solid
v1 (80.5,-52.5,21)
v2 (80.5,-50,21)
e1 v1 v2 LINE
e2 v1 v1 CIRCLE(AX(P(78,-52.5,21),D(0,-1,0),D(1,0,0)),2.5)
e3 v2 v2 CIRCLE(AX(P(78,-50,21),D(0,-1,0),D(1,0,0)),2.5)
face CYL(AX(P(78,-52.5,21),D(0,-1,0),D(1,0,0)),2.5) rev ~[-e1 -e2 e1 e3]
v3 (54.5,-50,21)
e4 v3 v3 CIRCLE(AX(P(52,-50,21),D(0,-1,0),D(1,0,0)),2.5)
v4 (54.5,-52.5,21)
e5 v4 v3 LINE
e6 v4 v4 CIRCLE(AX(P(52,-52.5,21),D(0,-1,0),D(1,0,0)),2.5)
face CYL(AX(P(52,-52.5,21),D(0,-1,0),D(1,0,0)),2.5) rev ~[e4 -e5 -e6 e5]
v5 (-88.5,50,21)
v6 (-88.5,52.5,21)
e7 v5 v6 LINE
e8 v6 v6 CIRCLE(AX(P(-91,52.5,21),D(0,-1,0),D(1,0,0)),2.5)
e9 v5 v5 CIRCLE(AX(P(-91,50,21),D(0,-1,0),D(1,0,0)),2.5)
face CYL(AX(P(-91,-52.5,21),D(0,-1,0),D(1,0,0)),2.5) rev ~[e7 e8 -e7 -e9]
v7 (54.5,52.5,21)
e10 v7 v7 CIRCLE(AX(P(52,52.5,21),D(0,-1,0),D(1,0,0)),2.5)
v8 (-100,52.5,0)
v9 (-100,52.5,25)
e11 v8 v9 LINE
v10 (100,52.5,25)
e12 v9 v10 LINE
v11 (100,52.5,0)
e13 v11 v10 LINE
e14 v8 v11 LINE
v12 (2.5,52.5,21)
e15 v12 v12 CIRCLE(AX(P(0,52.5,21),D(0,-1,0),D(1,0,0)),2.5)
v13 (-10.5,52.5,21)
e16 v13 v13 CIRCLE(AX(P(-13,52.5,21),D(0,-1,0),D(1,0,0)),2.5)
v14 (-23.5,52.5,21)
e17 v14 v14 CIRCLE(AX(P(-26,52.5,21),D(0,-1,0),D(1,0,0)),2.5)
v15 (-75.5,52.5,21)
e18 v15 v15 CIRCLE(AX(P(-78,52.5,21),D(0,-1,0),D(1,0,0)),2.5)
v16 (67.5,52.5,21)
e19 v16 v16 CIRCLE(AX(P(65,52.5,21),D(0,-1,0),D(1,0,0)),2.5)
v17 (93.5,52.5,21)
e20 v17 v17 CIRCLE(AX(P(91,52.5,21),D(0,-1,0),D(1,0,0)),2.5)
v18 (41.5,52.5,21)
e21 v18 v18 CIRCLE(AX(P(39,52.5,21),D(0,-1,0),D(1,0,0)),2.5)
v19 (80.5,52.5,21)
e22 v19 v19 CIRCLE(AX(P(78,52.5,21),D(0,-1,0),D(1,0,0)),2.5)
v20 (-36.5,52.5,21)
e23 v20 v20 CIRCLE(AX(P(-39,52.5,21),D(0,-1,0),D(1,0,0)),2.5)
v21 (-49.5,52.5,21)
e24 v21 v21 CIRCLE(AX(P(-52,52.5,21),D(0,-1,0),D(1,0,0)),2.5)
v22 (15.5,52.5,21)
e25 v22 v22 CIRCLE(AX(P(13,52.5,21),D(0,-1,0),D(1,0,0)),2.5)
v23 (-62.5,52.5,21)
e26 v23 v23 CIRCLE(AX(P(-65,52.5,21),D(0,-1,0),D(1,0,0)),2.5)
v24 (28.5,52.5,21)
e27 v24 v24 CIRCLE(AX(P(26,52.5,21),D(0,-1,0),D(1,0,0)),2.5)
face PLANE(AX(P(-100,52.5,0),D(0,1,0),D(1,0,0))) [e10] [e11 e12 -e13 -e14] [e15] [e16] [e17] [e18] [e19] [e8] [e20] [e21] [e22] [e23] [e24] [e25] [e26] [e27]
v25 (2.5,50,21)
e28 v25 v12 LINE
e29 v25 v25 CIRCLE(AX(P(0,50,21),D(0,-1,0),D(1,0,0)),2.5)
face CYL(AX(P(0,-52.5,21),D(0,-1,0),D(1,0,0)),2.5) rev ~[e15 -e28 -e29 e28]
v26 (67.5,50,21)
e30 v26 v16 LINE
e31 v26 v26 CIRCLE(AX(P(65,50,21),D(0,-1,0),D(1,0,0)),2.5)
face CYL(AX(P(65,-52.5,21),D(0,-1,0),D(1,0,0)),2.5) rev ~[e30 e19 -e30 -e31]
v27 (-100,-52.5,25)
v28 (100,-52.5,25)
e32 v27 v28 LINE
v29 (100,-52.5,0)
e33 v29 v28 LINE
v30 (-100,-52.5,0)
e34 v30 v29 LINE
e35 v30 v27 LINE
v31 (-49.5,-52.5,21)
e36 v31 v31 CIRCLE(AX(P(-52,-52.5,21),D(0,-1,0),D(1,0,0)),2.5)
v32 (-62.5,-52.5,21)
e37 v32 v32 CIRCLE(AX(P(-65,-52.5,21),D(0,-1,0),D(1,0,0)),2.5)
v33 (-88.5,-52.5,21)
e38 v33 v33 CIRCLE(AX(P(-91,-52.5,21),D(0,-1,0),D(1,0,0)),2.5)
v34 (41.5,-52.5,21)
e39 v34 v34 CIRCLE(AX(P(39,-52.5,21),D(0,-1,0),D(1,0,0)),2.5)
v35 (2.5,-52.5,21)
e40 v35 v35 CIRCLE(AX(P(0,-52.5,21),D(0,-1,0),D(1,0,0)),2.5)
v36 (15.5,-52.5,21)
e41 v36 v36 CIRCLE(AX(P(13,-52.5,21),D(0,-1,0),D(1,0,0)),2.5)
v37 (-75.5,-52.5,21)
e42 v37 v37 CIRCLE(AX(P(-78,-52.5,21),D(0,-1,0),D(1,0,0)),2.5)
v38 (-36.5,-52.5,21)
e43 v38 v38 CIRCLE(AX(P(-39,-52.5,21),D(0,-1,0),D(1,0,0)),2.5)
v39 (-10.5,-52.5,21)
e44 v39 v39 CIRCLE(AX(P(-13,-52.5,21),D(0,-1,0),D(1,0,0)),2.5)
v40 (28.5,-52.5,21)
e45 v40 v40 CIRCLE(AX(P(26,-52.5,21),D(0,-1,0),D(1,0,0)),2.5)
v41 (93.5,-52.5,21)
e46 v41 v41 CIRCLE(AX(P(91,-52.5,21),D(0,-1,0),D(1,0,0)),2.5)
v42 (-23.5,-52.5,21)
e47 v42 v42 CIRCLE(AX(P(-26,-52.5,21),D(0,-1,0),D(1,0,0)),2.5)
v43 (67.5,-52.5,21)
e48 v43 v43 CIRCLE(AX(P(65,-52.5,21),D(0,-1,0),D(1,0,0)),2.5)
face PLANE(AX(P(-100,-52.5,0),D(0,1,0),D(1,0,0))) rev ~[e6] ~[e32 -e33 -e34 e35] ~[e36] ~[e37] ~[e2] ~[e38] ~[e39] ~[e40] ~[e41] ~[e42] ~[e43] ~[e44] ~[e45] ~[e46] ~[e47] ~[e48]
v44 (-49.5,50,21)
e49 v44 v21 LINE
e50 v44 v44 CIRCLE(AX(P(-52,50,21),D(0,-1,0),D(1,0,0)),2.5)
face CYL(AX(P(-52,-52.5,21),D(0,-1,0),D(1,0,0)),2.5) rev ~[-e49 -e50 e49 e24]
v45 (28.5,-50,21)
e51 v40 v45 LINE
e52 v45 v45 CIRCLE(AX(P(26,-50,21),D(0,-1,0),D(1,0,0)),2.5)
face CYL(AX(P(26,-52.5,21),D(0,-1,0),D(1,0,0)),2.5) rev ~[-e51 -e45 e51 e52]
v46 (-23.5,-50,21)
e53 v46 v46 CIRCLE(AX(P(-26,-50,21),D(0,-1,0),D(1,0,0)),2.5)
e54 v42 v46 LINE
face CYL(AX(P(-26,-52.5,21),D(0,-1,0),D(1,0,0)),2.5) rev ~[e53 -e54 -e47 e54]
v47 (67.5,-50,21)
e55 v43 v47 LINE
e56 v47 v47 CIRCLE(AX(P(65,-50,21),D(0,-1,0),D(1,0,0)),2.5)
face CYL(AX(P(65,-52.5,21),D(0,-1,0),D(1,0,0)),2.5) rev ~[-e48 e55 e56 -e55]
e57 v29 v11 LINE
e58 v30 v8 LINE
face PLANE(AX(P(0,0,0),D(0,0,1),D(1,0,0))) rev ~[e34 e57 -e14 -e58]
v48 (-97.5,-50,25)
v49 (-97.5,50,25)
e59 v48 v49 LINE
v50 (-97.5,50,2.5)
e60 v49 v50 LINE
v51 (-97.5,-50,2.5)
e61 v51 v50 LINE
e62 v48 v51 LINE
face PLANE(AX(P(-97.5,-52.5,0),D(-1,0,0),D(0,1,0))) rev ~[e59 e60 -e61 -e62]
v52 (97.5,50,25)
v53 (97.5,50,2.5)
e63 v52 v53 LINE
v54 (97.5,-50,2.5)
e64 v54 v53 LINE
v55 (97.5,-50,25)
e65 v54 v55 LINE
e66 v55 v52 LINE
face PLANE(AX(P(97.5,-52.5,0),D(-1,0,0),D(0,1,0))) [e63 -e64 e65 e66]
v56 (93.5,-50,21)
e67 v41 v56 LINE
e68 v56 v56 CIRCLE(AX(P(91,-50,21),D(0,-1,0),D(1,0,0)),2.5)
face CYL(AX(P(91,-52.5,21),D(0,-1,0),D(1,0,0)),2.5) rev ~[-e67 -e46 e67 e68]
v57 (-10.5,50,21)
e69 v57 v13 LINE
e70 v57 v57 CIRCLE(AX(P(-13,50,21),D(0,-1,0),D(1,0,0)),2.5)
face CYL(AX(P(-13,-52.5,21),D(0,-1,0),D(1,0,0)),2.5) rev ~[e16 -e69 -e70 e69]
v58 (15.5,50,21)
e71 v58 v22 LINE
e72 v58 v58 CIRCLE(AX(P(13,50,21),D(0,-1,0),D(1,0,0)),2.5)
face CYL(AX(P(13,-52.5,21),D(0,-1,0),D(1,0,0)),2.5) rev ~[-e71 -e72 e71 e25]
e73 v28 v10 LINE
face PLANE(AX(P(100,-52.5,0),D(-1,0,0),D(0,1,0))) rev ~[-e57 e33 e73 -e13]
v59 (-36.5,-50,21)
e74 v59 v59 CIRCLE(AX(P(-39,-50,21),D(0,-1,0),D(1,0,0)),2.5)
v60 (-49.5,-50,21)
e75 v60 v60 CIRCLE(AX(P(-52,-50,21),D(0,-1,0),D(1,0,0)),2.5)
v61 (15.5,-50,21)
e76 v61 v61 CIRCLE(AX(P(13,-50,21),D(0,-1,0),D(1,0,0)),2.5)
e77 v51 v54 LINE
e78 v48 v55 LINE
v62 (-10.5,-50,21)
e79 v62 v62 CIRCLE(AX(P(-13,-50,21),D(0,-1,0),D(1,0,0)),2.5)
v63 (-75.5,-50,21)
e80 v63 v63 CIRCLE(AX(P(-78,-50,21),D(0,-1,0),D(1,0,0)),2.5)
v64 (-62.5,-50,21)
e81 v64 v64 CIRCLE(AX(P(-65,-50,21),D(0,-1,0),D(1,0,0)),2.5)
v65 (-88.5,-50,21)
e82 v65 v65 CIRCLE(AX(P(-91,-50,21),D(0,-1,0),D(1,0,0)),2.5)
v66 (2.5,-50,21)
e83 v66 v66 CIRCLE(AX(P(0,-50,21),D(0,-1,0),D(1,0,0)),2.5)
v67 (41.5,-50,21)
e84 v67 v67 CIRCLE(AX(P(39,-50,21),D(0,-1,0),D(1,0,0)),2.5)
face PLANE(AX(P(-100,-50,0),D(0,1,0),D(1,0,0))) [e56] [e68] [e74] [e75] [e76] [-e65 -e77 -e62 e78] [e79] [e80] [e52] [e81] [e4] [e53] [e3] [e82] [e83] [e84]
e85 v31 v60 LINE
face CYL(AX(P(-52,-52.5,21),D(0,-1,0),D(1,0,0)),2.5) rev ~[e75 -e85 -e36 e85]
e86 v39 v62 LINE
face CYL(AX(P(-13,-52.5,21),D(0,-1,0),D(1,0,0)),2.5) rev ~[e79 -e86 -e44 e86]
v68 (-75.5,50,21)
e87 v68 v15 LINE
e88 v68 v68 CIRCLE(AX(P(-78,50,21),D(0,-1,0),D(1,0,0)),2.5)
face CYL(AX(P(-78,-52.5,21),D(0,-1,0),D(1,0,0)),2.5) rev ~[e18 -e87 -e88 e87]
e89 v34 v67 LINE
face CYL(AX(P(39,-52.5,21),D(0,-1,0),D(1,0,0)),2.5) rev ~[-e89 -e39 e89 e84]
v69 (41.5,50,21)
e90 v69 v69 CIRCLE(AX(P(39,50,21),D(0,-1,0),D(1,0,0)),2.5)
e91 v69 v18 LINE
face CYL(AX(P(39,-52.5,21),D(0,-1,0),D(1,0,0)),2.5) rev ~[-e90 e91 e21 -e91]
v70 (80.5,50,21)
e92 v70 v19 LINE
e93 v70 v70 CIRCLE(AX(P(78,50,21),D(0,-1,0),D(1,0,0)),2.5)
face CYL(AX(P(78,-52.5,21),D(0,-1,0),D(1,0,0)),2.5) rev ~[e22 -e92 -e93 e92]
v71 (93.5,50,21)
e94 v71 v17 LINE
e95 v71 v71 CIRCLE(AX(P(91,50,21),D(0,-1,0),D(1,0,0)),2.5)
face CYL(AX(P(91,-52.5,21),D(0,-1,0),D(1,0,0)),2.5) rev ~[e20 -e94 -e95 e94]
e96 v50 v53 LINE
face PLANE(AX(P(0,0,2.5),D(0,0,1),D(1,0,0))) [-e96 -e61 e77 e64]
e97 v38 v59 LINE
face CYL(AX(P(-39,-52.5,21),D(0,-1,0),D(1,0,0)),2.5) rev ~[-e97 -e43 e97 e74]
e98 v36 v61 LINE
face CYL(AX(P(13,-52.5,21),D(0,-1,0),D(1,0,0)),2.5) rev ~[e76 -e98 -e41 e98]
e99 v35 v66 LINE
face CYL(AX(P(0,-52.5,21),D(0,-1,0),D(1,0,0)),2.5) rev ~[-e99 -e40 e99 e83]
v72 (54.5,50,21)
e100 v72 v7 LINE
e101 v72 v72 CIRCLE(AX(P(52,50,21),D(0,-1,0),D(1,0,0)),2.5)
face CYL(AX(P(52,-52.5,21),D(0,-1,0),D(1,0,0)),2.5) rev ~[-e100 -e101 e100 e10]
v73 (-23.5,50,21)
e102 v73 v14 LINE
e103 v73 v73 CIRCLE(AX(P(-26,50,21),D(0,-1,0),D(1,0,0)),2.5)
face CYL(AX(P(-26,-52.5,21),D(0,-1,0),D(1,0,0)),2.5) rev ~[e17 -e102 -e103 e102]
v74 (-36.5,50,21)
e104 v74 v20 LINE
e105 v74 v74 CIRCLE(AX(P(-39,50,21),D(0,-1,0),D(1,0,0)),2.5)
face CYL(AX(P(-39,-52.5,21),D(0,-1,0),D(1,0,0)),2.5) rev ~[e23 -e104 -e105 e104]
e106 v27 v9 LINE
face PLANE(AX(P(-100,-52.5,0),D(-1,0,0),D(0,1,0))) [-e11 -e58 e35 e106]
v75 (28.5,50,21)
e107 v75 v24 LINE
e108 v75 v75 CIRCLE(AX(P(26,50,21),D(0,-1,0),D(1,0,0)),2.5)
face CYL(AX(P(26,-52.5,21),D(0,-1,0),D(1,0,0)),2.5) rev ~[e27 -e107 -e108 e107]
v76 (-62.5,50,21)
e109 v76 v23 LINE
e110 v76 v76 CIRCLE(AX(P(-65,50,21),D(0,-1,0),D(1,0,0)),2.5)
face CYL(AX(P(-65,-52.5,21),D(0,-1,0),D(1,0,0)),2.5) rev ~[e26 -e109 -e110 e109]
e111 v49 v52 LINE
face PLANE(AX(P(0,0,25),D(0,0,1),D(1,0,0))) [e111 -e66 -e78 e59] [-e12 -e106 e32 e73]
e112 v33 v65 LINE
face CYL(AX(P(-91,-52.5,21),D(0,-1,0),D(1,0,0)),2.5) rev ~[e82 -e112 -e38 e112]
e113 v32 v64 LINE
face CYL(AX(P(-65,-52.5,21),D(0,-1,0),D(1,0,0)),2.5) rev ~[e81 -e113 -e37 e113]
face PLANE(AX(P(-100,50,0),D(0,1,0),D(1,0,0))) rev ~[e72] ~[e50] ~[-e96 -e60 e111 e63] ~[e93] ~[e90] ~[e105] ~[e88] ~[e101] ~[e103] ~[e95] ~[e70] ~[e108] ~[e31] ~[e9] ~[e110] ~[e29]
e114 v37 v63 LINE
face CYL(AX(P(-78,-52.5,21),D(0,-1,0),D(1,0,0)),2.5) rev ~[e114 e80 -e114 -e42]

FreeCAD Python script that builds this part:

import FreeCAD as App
import Part
import Sketcher


def faces_at(feature, points):
    """Names of the faces that lie closest to the given points."""
    faces = feature.Shape.Faces
    near = lambda p: min(range(len(faces)), key=lambda i: faces[i].distToShape(Part.Vertex(*p))[0])
    return sorted({f"Face{near(p) + 1}" for p in points})

doc = App.newDocument("Part")
body = doc.addObject("PartDesign::Body", "Body")

sketch1 = doc.addObject("Sketcher::SketchObject", "Sketch")
body.addObject(sketch1)
sketch1.AttachmentSupport = (doc.XY_Plane, [""])
sketch1.MapMode = "FlatFace"
sketch1.addGeometry([
    Part.LineSegment(App.Vector(-100, 52, 0), App.Vector(-100, -52, 0)),
    Part.LineSegment(App.Vector(-100, -52, 0), App.Vector(100, -52, 0)),
    Part.LineSegment(App.Vector(100, -52, 0), App.Vector(100, 52, 0)),
    Part.LineSegment(App.Vector(100, 52, 0), App.Vector(-100, 52, 0)),
], False)
sketch1.addConstraint([
    Sketcher.Constraint("Coincident", 0, 2, 1, 1),
    Sketcher.Constraint("Coincident", 1, 2, 2, 1),
    Sketcher.Constraint("Coincident", 2, 2, 3, 1),
    Sketcher.Constraint("Coincident", 3, 2, 0, 1),
    Sketcher.Constraint("Vertical", 0),
    Sketcher.Constraint("Horizontal", 1),
    Sketcher.Constraint("Vertical", 2),
    Sketcher.Constraint("Horizontal", 3),
    Sketcher.Constraint("Symmetric", 0, 2, 2, 2, -1, 1),
    Sketcher.Constraint("DistanceX", 1, 1, 1, 2, 200.0),
    Sketcher.Constraint("DistanceY", 0, 2, 0, 1, 105.0),
])
pad1 = doc.addObject("PartDesign::Pad", "Pad")
body.addObject(pad1)
pad1.Profile = sketch1
pad1.Length = 25
doc.recompute()

thickness = doc.addObject("PartDesign::Thickness", "Thickness")
body.addObject(thickness)
thickness.Base = (pad1, faces_at(pad1, [(0, 0, 25)]))
thickness.Value = 2.5
thickness.Reversed = True
thickness.Join = "Arc"

sketch2 = doc.addObject("Sketcher::SketchObject", "Sketch001")
body.addObject(sketch2)
sketch2.AttachmentSupport = (doc.XZ_Plane, [""])
sketch2.MapMode = "FlatFace"
sketch2.AttachmentOffset = App.Placement(App.Vector(0, 0, 52.5), App.Rotation())
sketch2.addGeometry([
    Part.Circle(App.Vector(-91, 21, 0), App.Vector(0, 0, 1), 2.5),
    Part.Circle(App.Vector(-78, 21, 0), App.Vector(0, 0, 1), 2.5),
    Part.Circle(App.Vector(-65, 21, 0), App.Vector(0, 0, 1), 2.5),
    Part.Circle(App.Vector(-52, 21, 0), App.Vector(0, 0, 1), 2.5),
    Part.Circle(App.Vector(-39, 21, 0), App.Vector(0, 0, 1), 2.5),
    Part.Circle(App.Vector(-26, 21, 0), App.Vector(0, 0, 1), 2.5),
    Part.Circle(App.Vector(-13, 21, 0), App.Vector(0, 0, 1), 2.5),
    Part.Circle(App.Vector(0, 21, 0), App.Vector(0, 0, 1), 2.5),
    Part.Circle(App.Vector(13, 21, 0), App.Vector(0, 0, 1), 2.5),
    Part.Circle(App.Vector(26, 21, 0), App.Vector(0, 0, 1), 2.5),
    Part.Circle(App.Vector(39, 21, 0), App.Vector(0, 0, 1), 2.5),
    Part.Circle(App.Vector(52, 21, 0), App.Vector(0, 0, 1), 2.5),
    Part.Circle(App.Vector(65, 21, 0), App.Vector(0, 0, 1), 2.5),
    Part.Circle(App.Vector(78, 21, 0), App.Vector(0, 0, 1), 2.5),
    Part.Circle(App.Vector(91, 21, 0), App.Vector(0, 0, 1), 2.5),
], False)
sketch2.addConstraint([
    Sketcher.Constraint("Equal", 0, 1),
    Sketcher.Constraint("Equal", 1, 2),
    Sketcher.Constraint("Equal", 2, 3),
    Sketcher.Constraint("Equal", 3, 4),
    Sketcher.Constraint("Equal", 4, 5),
    Sketcher.Constraint("Equal", 5, 6),
    Sketcher.Constraint("Equal", 6, 7),
    Sketcher.Constraint("Equal", 7, 8),
    Sketcher.Constraint("Equal", 8, 9),
    Sketcher.Constraint("Equal", 9, 10),
    Sketcher.Constraint("Equal", 10, 11),
    Sketcher.Constraint("Equal", 11, 12),
    Sketcher.Constraint("Equal", 12, 13),
    Sketcher.Constraint("Equal", 13, 14),
    Sketcher.Constraint("Symmetric", 6, 3, 8, 3, -2),
    Sketcher.Constraint("Symmetric", 5, 3, 9, 3, -2),
    Sketcher.Constraint("Symmetric", 4, 3, 10, 3, -2),
    Sketcher.Constraint("Symmetric", 3, 3, 11, 3, -2),
    Sketcher.Constraint("Symmetric", 2, 3, 12, 3, -2),
    Sketcher.Constraint("Symmetric", 1, 3, 13, 3, -2),
    Sketcher.Constraint("Symmetric", 0, 3, 14, 3, -2),
    Sketcher.Constraint("PointOnObject", 7, 3, -2),
    Sketcher.Constraint("Horizontal", 0, 3, 1, 3),
    Sketcher.Constraint("Horizontal", 1, 3, 2, 3),
    Sketcher.Constraint("Horizontal", 2, 3, 3, 3),
    Sketcher.Constraint("Horizontal", 3, 3, 4, 3),
    Sketcher.Constraint("Horizontal", 4, 3, 5, 3),
    Sketcher.Constraint("Horizontal", 5, 3, 6, 3),
    Sketcher.Constraint("Horizontal", 6, 3, 7, 3),
    Sketcher.Constraint("Diameter", 0, 5.0),
    Sketcher.Constraint("DistanceX", 0, 3, -1, 1, 91.0),
    Sketcher.Constraint("DistanceY", -1, 1, 0, 3, 21.0),
    Sketcher.Constraint("DistanceX", 1, 3, -1, 1, 78.0),
    Sketcher.Constraint("DistanceX", 2, 3, -1, 1, 65.0),
    Sketcher.Constraint("DistanceX", 3, 3, -1, 1, 52.0),
    Sketcher.Constraint("DistanceX", 4, 3, -1, 1, 39.0),
    Sketcher.Constraint("DistanceX", 5, 3, -1, 1, 26.0),
    Sketcher.Constraint("DistanceX", 6, 3, -1, 1, 13.0),
])
pocket1 = doc.addObject("PartDesign::Pocket", "Pocket")
body.addObject(pocket1)
pocket1.Profile = sketch2
pocket1.Type = "ThroughAll"

doc.recompute()
